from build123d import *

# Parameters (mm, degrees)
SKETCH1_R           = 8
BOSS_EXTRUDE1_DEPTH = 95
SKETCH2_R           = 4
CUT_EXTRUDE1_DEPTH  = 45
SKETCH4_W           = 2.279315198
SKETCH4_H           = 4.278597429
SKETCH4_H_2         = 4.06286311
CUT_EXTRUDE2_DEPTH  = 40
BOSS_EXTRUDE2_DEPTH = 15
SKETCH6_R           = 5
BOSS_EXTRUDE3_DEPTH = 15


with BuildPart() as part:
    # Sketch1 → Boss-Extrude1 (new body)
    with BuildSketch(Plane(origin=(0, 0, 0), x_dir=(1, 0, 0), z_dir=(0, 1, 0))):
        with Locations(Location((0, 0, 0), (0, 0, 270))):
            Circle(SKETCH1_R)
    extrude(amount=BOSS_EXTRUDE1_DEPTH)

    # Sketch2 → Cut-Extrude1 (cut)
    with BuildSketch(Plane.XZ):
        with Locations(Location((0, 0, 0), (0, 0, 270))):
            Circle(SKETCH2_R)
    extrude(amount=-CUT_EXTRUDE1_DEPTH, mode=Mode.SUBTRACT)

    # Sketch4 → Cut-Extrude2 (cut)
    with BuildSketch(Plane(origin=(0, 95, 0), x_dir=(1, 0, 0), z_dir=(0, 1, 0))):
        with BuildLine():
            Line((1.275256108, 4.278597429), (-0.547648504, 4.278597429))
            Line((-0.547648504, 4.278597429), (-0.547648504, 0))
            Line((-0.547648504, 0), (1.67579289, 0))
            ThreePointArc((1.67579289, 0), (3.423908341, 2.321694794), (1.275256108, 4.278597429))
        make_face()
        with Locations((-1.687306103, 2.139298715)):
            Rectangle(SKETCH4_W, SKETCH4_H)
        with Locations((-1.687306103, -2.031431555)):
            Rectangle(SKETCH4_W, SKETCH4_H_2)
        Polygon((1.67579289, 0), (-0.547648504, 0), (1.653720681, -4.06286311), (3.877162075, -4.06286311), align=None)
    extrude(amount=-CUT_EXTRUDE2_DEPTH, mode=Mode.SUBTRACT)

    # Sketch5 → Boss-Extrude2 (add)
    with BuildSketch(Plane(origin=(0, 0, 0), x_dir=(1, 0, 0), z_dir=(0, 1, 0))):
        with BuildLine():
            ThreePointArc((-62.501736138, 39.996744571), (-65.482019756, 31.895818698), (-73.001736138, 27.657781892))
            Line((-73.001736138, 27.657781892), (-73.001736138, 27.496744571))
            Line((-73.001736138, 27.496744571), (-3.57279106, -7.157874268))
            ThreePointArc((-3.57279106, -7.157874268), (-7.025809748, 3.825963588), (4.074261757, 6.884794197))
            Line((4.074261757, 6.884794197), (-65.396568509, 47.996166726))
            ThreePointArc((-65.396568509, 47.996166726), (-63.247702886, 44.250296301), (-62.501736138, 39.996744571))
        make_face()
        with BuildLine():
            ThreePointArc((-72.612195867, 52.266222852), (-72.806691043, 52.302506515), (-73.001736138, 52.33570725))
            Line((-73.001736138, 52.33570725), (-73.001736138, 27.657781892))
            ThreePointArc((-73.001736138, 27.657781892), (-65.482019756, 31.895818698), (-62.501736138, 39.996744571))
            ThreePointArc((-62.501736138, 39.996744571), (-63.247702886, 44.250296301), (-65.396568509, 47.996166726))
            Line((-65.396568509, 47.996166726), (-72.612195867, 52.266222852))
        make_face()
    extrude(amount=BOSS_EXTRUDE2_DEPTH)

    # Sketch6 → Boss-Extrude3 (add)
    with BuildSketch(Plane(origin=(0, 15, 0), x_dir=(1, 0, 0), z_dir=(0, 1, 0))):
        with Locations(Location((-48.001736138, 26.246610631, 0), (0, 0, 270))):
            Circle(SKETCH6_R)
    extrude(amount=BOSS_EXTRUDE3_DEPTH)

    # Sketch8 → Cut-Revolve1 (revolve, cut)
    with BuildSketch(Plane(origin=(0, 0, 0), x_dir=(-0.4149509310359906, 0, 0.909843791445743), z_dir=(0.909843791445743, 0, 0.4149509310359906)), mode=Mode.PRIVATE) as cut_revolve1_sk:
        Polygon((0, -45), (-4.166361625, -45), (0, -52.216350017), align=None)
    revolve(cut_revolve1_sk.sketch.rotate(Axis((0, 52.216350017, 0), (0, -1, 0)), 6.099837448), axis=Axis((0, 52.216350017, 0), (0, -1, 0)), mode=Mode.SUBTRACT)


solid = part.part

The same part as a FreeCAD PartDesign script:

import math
import FreeCAD as App
import Part
import Sketcher
from FreeCAD import Vector
Q = App.Units.Quantity


def add_polygon(sketch, points):
    """Adds a closed chain of lines whose ends are joined by coincident constraints."""
    first, n = sketch.GeometryCount, len(points)
    for a, b in zip(points, points[1:] + points[:1]):
        sketch.addGeometry(Part.LineSegment(App.Vector(*a, 0), App.Vector(*b, 0)), False)
    for i in range(n):
        sketch.addConstraint(Sketcher.Constraint("Coincident", first + i, 2, first + (i + 1) % n, 1))

doc = App.newDocument("Part")
body = doc.addObject("PartDesign::Body", "Body")

sketch1 = body.newObject("Sketcher::SketchObject", "Sketch")
sketch1.AttachmentSupport = (doc.getObject("XZ_Plane"), [""])
sketch1.MapMode = "FlatFace"
sketch1.addGeometry(Part.Circle(Vector(0, 0, 0), Vector(0, 0, 1), 8), False)
sketch1.addConstraint(Sketcher.Constraint("Coincident", 0, 3, -1, 1))
sketch1.addConstraint(Sketcher.Constraint("Diameter", 0, Q("16 mm")))
pad1 = body.newObject("PartDesign::Pad", "Pad")
pad1.Profile = sketch1
pad1.Length = 95
pad1.Reversed = True

sketch2 = body.newObject("Sketcher::SketchObject", "Sketch001")
sketch2.AttachmentSupport = (doc.getObject("XZ_Plane"), [""])
sketch2.MapMode = "FlatFace"
sketch2.addGeometry(Part.Circle(Vector(0, 0, 0), Vector(0, 0, 1), 4), False)
sketch2.addConstraint(Sketcher.Constraint("Coincident", 0, 3, -1, 1))
sketch2.addConstraint(Sketcher.Constraint("Diameter", 0, Q("8 mm")))
pocket1 = body.newObject("PartDesign::Pocket", "Pocket")
pocket1.Profile = sketch2
pocket1.Length = 45

sketch3 = body.newObject("Sketcher::SketchObject", "Sketch002")
sketch3.AttachmentSupport = (doc.getObject("XZ_Plane"), [""])
sketch3.MapMode = "FlatFace"
sketch3.AttachmentOffset = App.Placement(Vector(0, 0, -95), App.Rotation())
sketch3.addGeometry(Part.LineSegment(Vector(1.3, -4.3, 0), Vector(-2.8, -4.3, 0)), False)
sketch3.addGeometry(Part.LineSegment(Vector(-2.8, -4.3, 0), Vector(-2.8, 4.1, 0)), False)
sketch3.addGeometry(Part.LineSegment(Vector(-2.8, 4.1, 0), Vector(-0.5, 4.1, 0)), False)
sketch3.addGeometry(Part.LineSegment(Vector(-0.5, 4.1, 0), Vector(-0.5, 0, 0)), False)
sketch3.addGeometry(Part.LineSegment(Vector(-0.5, 0, 0), Vector(1.7, 4.1, 0)), False)
sketch3.addGeometry(Part.LineSegment(Vector(1.7, 4.1, 0), Vector(3.9, 4.1, 0)), False)
sketch3.addGeometry(Part.LineSegment(Vector(3.9, 4.1, 0), Vector(1.7, 0, 0)), False)
sketch3.addGeometry(Part.ArcOfCircle(Part.Circle(Vector(1.3, -2.1, 0), Vector(0, 0, 1), 2.2), math.radians(-90), math.radians(79)), False)
sketch3.addConstraint(Sketcher.Constraint("Coincident", 0, 2, 1, 1))
sketch3.addConstraint(Sketcher.Constraint("Coincident", 1, 2, 2, 1))
sketch3.addConstraint(Sketcher.Constraint("Coincident", 2, 2, 3, 1))
sketch3.addConstraint(Sketcher.Constraint("Coincident", 3, 2, 4, 1))
sketch3.addConstraint(Sketcher.Constraint("Coincident", 4, 2, 5, 1))
sketch3.addConstraint(Sketcher.Constraint("Coincident", 5, 2, 6, 1))
sketch3.addConstraint(Sketcher.Constraint("Coincident", 6, 2, 7, 2))
sketch3.addConstraint(Sketcher.Constraint("Tangent", 7, 1, 0, 1))
sketch3.addConstraint(Sketcher.Constraint("Horizontal", 0))
sketch3.addConstraint(Sketcher.Constraint("Vertical", 1))
sketch3.addConstraint(Sketcher.Constraint("Horizontal", 2))
sketch3.addConstraint(Sketcher.Constraint("Vertical", 3))
sketch3.addConstraint(Sketcher.Constraint("Horizontal", 5))
sketch3.addConstraint(Sketcher.Constraint("PointOnObject", 3, 2, -1))
sketch3.addConstraint(Sketcher.Constraint("PointOnObject", 6, 2, -1))
sketch3.addConstraint(Sketcher.Constraint("Parallel", 4, 6))
sketch3.addConstraint(Sketcher.Constraint("Horizontal", 2, 2, 4, 2))
sketch3.addConstraint(Sketcher.Constraint("Radius", 7, Q("2.158047 mm")))
sketch3.addConstraint(Sketcher.Constraint("DistanceX", 0, 2, 0, 1, Q("4.10222 mm")))
sketch3.addConstraint(Sketcher.Constraint("DistanceX", 5, 1, 5, 2, Q("2.223441 mm")))
sketch3.addConstraint(Sketcher.Constraint("DistanceY", 1, 1, 1, 2, Q("8.341461 mm")))
sketch3.addConstraint(Sketcher.Constraint("DistanceX", 2, 1, 2, 2, Q("2.279315 mm")))
sketch3.addConstraint(Sketcher.Constraint("DistanceX", 2, 2, -1, 1, Q("0.547649 mm")))
sketch3.addConstraint(Sketcher.Constraint("DistanceX", -1, 1, 4, 2, Q("1.653721 mm")))
pocket2 = body.newObject("PartDesign::Pocket", "Pocket001")
pocket2.Profile = sketch3
pocket2.Length = 40
pocket2.Reversed = True

sketch4 = body.newObject("Sketcher::SketchObject", "Sketch003")
sketch4.AttachmentSupport = (doc.getObject("XZ_Plane"), [""])
sketch4.MapMode = "FlatFace"
sketch4.addGeometry(Part.LineSegment(Vector(-73.001736, -27.496745, 0), Vector(-3.572791, 7.157874, 0)), False)
sketch4.addGeometry(Part.ArcOfCircle(Part.Circle(Vector(0, 0, 0), Vector(0, 0, 1), 8), math.radians(116.52568), math.radians(300.616064)), False)
sketch4.addGeometry(Part.LineSegment(Vector(4.074262, -6.884794, 0), Vector(-65.396569, -47.996167, 0)), False)
sketch4.addGeometry(Part.LineSegment(Vector(-65.396569, -47.996167, 0), Vector(-72.612196, -52.266223, 0)), False)
sketch4.addGeometry(Part.ArcOfCircle(Part.Circle(Vector(-75.001736, -39.996744, 0), Vector(0, 0, 1), 12.500001), math.radians(-80.793104), math.radians(-78.979324)), False)
sketch4.addGeometry(Part.LineSegment(Vector(-73.001736, -52.335707, 0), Vector(-73.001736, -27.496745, 0)), False)
sketch4.addConstraint(Sketcher.Constraint("Coincident", 0, 2, 1, 1))
sketch4.addConstraint(Sketcher.Constraint("Coincident", 1, 2, 2, 1))
sketch4.addConstraint(Sketcher.Constraint("Coincident", 2, 2, 3, 1))
sketch4.addConstraint(Sketcher.Constraint("Coincident", 3, 2, 4, 2))
sketch4.addConstraint(Sketcher.Constraint("Coincident", 4, 1, 5, 1))
sketch4.addConstraint(Sketcher.Constraint("Coincident", 5, 2, 0, 1))
sketch4.addConstraint(Sketcher.Constraint("Vertical", 5))
sketch4.addConstraint(Sketcher.Constraint("Coincident", 1, 3, -1, 1))
sketch4.addConstraint(Sketcher.Constraint("Radius", 1, Q("8 mm")))
sketch4.addConstraint(Sketcher.Constraint("Radius", 4, Q("12.500001 mm")))
sketch4.addConstraint(Sketcher.Constraint("DistanceX", 4, 3, 4, 1, Q("2 mm")))
sketch4.addConstraint(Sketcher.Constraint("DistanceY", 4, 3, 5, 2, Q("12.499999 mm")))
sketch4.addConstraint(Sketcher.Constraint("DistanceX", 4, 3, 1, 2, Q("79.075998 mm")))
sketch4.addConstraint(Sketcher.Constraint("Distance", 0, Q("77.597171 mm")))
sketch4.addConstraint(Sketcher.Constraint("Distance", 3, Q("8.384429 mm")))
sketch4.addConstraint(Sketcher.Constraint("DistanceX", 0, 2, -1, 1, Q("3.572791 mm")))
sketch4.addConstraint(Sketcher.Constraint("DistanceX", -1, 1, 1, 2, Q("4.074262 mm")))
sketch4.addConstraint(Sketcher.Constraint("DistanceX", 2, 2, -1, 1, Q("65.396569 mm")))
sketch4.addConstraint(Sketcher.Constraint("DistanceY", 2, 2, 0, 2, Q("55.154041 mm")))
pad2 = body.newObject("PartDesign::Pad", "Pad001")
pad2.Profile = sketch4
pad2.Length = 15
pad2.Reversed = True

sketch5 = body.newObject("Sketcher::SketchObject", "Sketch004")
sketch5.AttachmentSupport = (doc.getObject("XZ_Plane"), [""])
sketch5.MapMode = "FlatFace"
sketch5.AttachmentOffset = App.Placement(Vector(0, 0, -15), App.Rotation())
sketch5.addGeometry(Part.Circle(Vector(-48, -26, 0), Vector(0, 0, 1), 5), False)
sketch5.addConstraint(Sketcher.Constraint("Diameter", 0, Q("10 mm")))
sketch5.addConstraint(Sketcher.Constraint("DistanceY", 0, 3, -1, 1, Q("26.246611 mm")))
sketch5.addConstraint(Sketcher.Constraint("DistanceX", 0, 3, -1, 1, Q("48.001736 mm")))
pad3 = body.newObject("PartDesign::Pad", "Pad002")
pad3.Profile = sketch5
pad3.Length = 15
pad3.Reversed = True

sketch6 = body.newObject("Sketcher::SketchObject", "Sketch005")
sketch6.Placement = App.Placement(Vector(0, 0, 0), App.Rotation(Vector(-0.414950931, 0, 0.909843791), Vector(0, -0.999999999, 0), Vector(0.909843791, 0, 0.414950931), "ZXY"))
add_polygon(sketch6, [(0, -45), (-4.2, -45), (0, -52.2)])
sketch6.addConstraint(Sketcher.Constraint("Horizontal", 0))
sketch6.addConstraint(Sketcher.Constraint("Vertical", 2))
sketch6.addConstraint(Sketcher.Constraint("PointOnObject", 1, 2, -2))
sketch6.addConstraint(Sketcher.Constraint("Angle", 1, Q("-60 deg")))
sketch6.addConstraint(Sketcher.Constraint("DistanceY", 0, 2, -1, 1, Q("45 mm")))
sketch6.addConstraint(Sketcher.Constraint("DistanceX", 0, 2, 0, 1, Q("4.166362 mm")))
groove = body.newObject("PartDesign::Groove", "Groove")
groove.Profile = sketch6
groove.ReferenceAxis = (sketch6, ["V_Axis"])
groove.Angle = 360

doc.recompute()
